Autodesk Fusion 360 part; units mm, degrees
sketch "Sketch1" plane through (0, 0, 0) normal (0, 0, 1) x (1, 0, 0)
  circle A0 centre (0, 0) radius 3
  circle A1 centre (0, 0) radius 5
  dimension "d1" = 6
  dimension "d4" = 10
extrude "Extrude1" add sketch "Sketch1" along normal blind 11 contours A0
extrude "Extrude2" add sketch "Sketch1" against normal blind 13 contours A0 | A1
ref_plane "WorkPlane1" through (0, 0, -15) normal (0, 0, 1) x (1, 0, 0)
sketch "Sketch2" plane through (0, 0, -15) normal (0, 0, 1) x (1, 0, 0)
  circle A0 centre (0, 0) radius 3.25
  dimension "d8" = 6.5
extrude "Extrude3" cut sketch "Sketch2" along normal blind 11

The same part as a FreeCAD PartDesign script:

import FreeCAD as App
import Part
import Sketcher

doc = App.newDocument("Part")
body = doc.addObject("PartDesign::Body", "Body")

# Sketch on XY plane
sketch1 = doc.addObject("Sketcher::SketchObject", "Sketch")
body.addObject(sketch1)
sketch1.AttachmentSupport = (doc.XY_Plane, [""])
sketch1.MapMode = "FlatFace"
sketch1.addGeometry(Part.Circle(App.Vector(0, 0, 0), App.Vector(0, 0, 1), 3), False)
sketch1.addConstraint([
    Sketcher.Constraint("Coincident", 0, 3, -1, 1),
    Sketcher.Constraint("Diameter", 0, 6.0),
])
pad1 = doc.addObject("PartDesign::Pad", "Pad")
body.addObject(pad1)
pad1.Profile = sketch1
pad1.Length = 11

# Sketch on XY plane
sketch2 = doc.addObject("Sketcher::SketchObject", "Sketch001")
body.addObject(sketch2)
sketch2.AttachmentSupport = (doc.XY_Plane, [""])
sketch2.MapMode = "FlatFace"
sketch2.addGeometry(Part.Circle(App.Vector(0, 0, 0), App.Vector(0, 0, 1), 5), False)
sketch2.addConstraint([
    Sketcher.Constraint("Coincident", 0, 3, -1, 1),
    Sketcher.Constraint("Diameter", 0, 10.0),
])
pad2 = doc.addObject("PartDesign::Pad", "Pad001")
body.addObject(pad2)
pad2.Profile = sketch2
pad2.Length = 13
pad2.Reversed = True

# Sketch on XY plane
sketch3 = doc.addObject("Sketcher::SketchObject", "Sketch002")
body.addObject(sketch3)
sketch3.AttachmentSupport = (doc.XY_Plane, [""])
sketch3.MapMode = "FlatFace"
sketch3.AttachmentOffset = App.Placement(App.Vector(0, 0, -15), App.Rotation())
sketch3.addGeometry(Part.Circle(App.Vector(0, 0, 0), App.Vector(0, 0, 1), 3.2), False)
sketch3.addConstraint([
    Sketcher.Constraint("Coincident", 0, 3, -1, 1),
    Sketcher.Constraint("Diameter", 0, 6.5),
])
pocket1 = doc.addObject("PartDesign::Pocket", "Pocket")
body.addObject(pocket1)
pocket1.Profile = sketch3
pocket1.Length = 11
pocket1.Reversed = True

doc.recompute()
